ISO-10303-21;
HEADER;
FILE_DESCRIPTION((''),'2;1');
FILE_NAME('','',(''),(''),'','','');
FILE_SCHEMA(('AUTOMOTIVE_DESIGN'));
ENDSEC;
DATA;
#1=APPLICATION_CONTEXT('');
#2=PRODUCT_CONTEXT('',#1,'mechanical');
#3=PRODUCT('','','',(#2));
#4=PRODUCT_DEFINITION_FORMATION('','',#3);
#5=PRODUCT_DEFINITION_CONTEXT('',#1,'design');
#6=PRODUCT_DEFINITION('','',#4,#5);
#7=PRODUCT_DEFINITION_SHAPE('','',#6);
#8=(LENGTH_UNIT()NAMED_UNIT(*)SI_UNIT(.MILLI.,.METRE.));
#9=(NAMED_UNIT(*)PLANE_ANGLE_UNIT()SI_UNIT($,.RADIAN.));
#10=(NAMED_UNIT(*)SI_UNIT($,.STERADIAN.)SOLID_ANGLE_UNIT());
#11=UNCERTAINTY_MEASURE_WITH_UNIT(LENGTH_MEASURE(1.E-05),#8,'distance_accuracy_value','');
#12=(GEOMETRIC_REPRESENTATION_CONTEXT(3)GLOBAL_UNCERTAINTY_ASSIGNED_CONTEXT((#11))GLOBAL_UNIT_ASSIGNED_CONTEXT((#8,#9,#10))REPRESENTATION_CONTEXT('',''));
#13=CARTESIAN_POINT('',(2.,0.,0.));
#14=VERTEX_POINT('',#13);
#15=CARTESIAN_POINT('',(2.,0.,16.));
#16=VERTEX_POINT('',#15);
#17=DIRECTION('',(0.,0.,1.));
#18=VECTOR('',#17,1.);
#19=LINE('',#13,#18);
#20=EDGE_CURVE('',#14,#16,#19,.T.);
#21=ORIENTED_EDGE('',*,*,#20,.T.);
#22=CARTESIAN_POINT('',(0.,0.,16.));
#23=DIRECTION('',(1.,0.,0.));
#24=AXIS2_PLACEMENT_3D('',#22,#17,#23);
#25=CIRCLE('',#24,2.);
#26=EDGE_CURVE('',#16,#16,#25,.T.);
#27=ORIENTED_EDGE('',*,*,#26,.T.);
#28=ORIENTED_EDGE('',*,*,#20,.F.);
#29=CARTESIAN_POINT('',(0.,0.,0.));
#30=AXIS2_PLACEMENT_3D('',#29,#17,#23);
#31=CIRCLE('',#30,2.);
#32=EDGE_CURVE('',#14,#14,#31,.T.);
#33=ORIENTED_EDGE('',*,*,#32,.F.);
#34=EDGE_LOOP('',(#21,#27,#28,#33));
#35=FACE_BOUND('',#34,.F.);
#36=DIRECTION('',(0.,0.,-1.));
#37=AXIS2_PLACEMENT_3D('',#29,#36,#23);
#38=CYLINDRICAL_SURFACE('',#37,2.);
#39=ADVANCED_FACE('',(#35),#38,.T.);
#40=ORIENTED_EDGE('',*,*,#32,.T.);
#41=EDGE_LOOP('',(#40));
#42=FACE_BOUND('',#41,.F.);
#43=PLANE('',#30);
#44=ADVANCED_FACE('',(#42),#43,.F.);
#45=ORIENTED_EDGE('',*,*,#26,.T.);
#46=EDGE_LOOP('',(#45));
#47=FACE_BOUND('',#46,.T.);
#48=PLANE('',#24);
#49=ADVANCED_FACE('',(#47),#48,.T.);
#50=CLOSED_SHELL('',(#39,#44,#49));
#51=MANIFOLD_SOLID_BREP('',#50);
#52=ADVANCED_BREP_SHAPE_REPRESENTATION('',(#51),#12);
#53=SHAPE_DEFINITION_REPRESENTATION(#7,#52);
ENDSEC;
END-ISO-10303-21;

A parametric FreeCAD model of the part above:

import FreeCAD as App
import Part
import Sketcher

V = App.Vector

doc = App.newDocument("Part")
body = doc.addObject("PartDesign::Body", "Body")

# Sketch on XY plane
sketch1 = body.newObject("Sketcher::SketchObject", "Sketch")
sketch1.AttachmentSupport = (doc.getObject("XY_Plane"), [""])
sketch1.MapMode = "FlatFace"
sketch1.addGeometry(Part.Circle(V(0, 0, 0), V(0, 0, 1), 2), False)
sketch1.addConstraint(Sketcher.Constraint("Coincident", 0, 3, -1, 1))
sketch1.addConstraint(Sketcher.Constraint("Diameter", 0, 4.0))
pad1 = body.newObject("PartDesign::Pad", "Pad")
pad1.Profile = sketch1
pad1.Length = 16

doc.recompute()
